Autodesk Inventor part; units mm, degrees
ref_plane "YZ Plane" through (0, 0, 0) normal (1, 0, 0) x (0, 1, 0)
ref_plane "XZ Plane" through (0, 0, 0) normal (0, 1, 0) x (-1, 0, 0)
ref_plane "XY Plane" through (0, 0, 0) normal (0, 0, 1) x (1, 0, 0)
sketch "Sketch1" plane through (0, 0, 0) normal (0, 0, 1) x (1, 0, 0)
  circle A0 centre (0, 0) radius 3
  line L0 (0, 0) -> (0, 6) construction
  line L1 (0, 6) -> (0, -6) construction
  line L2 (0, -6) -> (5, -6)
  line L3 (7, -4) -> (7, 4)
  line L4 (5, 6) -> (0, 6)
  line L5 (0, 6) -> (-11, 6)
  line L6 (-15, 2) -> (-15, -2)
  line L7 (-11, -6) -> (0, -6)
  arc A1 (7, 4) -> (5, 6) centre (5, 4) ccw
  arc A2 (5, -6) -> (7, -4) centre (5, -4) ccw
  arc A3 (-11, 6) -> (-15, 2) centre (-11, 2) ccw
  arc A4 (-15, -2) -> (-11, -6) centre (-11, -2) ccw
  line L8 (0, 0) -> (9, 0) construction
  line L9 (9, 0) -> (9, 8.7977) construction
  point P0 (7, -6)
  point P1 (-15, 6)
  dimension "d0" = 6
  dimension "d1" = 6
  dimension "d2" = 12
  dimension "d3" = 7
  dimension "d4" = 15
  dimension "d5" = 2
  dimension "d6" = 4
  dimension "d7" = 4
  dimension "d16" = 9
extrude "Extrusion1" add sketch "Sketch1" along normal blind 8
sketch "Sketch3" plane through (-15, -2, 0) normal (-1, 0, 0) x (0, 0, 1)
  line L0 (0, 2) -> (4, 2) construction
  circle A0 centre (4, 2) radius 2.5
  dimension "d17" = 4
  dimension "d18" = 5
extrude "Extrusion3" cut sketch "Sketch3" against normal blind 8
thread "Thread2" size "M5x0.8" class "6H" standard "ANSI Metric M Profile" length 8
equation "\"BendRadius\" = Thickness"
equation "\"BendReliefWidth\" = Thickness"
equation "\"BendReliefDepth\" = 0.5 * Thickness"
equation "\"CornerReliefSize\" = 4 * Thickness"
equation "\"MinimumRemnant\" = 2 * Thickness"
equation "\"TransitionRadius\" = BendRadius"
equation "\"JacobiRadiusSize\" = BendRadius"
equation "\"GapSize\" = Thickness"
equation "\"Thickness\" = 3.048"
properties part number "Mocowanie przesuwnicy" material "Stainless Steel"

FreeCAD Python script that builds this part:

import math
import FreeCAD as App
import Part
import Sketcher

doc = App.newDocument("Part")
body = doc.addObject("PartDesign::Body", "Body")

# Sketch on XY plane
sketch1 = body.newObject("Sketcher::SketchObject", "Sketch")
sketch1.AttachmentSupport = (doc.getObject("XY_Plane"), [""])
sketch1.MapMode = "FlatFace"
sketch1.addGeometry([
    Part.LineSegment(App.Vector(-11, -6, 0), App.Vector(5, -6, 0)),  # 0
    Part.ArcOfCircle(Part.Circle(App.Vector(5, -4, 0), App.Vector(0, 0, 1), 2), math.radians(-90), math.radians(0)),  # 1
    Part.LineSegment(App.Vector(7, -4, 0), App.Vector(7, 4, 0)),  # 2
    Part.ArcOfCircle(Part.Circle(App.Vector(5, 4, 0), App.Vector(0, 0, 1), 2), math.radians(0), math.radians(90)),  # 3
    Part.LineSegment(App.Vector(5, 6, 0), App.Vector(-11, 6, 0)),  # 4
    Part.ArcOfCircle(Part.Circle(App.Vector(-11, 2, 0), App.Vector(0, 0, 1), 4), math.radians(90), math.radians(180)),  # 5
    Part.LineSegment(App.Vector(-15, 2, 0), App.Vector(-15, -2, 0)),  # 6
    Part.ArcOfCircle(Part.Circle(App.Vector(-11, -2, 0), App.Vector(0, 0, 1), 4), math.radians(180), math.radians(270)),  # 7
    Part.Circle(App.Vector(0, 0, 0), App.Vector(0, 0, 1), 3),  # 8
], False)
sketch1.addConstraint([
    Sketcher.Constraint("Tangent", 0, 2, 1, 1),
    Sketcher.Constraint("Tangent", 1, 2, 2, 1),
    Sketcher.Constraint("Tangent", 2, 2, 3, 1),
    Sketcher.Constraint("Tangent", 3, 2, 4, 1),
    Sketcher.Constraint("Tangent", 4, 2, 5, 1),
    Sketcher.Constraint("Tangent", 5, 2, 6, 1),
    Sketcher.Constraint("Tangent", 6, 2, 7, 1),
    Sketcher.Constraint("Tangent", 7, 2, 0, 1),
    Sketcher.Constraint("Horizontal", 0),
    Sketcher.Constraint("Vertical", 2),
    Sketcher.Constraint("Horizontal", 4),
    Sketcher.Constraint("Vertical", 6),
    Sketcher.Constraint("Coincident", 8, 3, -1, 1),
    Sketcher.Constraint("Equal", 1, 3),
    Sketcher.Constraint("Equal", 5, 7),
    Sketcher.Constraint("Diameter", 8, 6.0),
    Sketcher.Constraint("Radius", 1, 2.0),
    Sketcher.Constraint("Radius", 5, 4.0),
    Sketcher.Constraint("DistanceY", 6, 2, 6, 1, 4.0),
    Sketcher.Constraint("DistanceY", 1, 3, -1, 1, 4.0),
    Sketcher.Constraint("DistanceX", -1, 1, 1, 2, 7.0),
    Sketcher.Constraint("DistanceX", 5, 2, -1, 1, 15.0),
])
pad1 = body.newObject("PartDesign::Pad", "Pad")
pad1.Profile = sketch1
pad1.Length = 8

# Sketch on YZ plane
sketch2 = body.newObject("Sketcher::SketchObject", "Sketch001")
sketch2.AttachmentSupport = (doc.getObject("YZ_Plane"), [""])
sketch2.MapMode = "FlatFace"
sketch2.AttachmentOffset = App.Placement(App.Vector(0, 0, -15), App.Rotation())
sketch2.addGeometry(Part.Circle(App.Vector(0, 4, 0), App.Vector(0, 0, 1), 2.5), False)
sketch2.addConstraint([
    Sketcher.Constraint("PointOnObject", 0, 3, -2),
    Sketcher.Constraint("Diameter", 0, 5.0),
    Sketcher.Constraint("DistanceY", -1, 1, 0, 3, 4.0),
])
pocket1 = body.newObject("PartDesign::Pocket", "Pocket")
pocket1.Profile = sketch2
pocket1.Length = 8
pocket1.Reversed = True

doc.recompute()
